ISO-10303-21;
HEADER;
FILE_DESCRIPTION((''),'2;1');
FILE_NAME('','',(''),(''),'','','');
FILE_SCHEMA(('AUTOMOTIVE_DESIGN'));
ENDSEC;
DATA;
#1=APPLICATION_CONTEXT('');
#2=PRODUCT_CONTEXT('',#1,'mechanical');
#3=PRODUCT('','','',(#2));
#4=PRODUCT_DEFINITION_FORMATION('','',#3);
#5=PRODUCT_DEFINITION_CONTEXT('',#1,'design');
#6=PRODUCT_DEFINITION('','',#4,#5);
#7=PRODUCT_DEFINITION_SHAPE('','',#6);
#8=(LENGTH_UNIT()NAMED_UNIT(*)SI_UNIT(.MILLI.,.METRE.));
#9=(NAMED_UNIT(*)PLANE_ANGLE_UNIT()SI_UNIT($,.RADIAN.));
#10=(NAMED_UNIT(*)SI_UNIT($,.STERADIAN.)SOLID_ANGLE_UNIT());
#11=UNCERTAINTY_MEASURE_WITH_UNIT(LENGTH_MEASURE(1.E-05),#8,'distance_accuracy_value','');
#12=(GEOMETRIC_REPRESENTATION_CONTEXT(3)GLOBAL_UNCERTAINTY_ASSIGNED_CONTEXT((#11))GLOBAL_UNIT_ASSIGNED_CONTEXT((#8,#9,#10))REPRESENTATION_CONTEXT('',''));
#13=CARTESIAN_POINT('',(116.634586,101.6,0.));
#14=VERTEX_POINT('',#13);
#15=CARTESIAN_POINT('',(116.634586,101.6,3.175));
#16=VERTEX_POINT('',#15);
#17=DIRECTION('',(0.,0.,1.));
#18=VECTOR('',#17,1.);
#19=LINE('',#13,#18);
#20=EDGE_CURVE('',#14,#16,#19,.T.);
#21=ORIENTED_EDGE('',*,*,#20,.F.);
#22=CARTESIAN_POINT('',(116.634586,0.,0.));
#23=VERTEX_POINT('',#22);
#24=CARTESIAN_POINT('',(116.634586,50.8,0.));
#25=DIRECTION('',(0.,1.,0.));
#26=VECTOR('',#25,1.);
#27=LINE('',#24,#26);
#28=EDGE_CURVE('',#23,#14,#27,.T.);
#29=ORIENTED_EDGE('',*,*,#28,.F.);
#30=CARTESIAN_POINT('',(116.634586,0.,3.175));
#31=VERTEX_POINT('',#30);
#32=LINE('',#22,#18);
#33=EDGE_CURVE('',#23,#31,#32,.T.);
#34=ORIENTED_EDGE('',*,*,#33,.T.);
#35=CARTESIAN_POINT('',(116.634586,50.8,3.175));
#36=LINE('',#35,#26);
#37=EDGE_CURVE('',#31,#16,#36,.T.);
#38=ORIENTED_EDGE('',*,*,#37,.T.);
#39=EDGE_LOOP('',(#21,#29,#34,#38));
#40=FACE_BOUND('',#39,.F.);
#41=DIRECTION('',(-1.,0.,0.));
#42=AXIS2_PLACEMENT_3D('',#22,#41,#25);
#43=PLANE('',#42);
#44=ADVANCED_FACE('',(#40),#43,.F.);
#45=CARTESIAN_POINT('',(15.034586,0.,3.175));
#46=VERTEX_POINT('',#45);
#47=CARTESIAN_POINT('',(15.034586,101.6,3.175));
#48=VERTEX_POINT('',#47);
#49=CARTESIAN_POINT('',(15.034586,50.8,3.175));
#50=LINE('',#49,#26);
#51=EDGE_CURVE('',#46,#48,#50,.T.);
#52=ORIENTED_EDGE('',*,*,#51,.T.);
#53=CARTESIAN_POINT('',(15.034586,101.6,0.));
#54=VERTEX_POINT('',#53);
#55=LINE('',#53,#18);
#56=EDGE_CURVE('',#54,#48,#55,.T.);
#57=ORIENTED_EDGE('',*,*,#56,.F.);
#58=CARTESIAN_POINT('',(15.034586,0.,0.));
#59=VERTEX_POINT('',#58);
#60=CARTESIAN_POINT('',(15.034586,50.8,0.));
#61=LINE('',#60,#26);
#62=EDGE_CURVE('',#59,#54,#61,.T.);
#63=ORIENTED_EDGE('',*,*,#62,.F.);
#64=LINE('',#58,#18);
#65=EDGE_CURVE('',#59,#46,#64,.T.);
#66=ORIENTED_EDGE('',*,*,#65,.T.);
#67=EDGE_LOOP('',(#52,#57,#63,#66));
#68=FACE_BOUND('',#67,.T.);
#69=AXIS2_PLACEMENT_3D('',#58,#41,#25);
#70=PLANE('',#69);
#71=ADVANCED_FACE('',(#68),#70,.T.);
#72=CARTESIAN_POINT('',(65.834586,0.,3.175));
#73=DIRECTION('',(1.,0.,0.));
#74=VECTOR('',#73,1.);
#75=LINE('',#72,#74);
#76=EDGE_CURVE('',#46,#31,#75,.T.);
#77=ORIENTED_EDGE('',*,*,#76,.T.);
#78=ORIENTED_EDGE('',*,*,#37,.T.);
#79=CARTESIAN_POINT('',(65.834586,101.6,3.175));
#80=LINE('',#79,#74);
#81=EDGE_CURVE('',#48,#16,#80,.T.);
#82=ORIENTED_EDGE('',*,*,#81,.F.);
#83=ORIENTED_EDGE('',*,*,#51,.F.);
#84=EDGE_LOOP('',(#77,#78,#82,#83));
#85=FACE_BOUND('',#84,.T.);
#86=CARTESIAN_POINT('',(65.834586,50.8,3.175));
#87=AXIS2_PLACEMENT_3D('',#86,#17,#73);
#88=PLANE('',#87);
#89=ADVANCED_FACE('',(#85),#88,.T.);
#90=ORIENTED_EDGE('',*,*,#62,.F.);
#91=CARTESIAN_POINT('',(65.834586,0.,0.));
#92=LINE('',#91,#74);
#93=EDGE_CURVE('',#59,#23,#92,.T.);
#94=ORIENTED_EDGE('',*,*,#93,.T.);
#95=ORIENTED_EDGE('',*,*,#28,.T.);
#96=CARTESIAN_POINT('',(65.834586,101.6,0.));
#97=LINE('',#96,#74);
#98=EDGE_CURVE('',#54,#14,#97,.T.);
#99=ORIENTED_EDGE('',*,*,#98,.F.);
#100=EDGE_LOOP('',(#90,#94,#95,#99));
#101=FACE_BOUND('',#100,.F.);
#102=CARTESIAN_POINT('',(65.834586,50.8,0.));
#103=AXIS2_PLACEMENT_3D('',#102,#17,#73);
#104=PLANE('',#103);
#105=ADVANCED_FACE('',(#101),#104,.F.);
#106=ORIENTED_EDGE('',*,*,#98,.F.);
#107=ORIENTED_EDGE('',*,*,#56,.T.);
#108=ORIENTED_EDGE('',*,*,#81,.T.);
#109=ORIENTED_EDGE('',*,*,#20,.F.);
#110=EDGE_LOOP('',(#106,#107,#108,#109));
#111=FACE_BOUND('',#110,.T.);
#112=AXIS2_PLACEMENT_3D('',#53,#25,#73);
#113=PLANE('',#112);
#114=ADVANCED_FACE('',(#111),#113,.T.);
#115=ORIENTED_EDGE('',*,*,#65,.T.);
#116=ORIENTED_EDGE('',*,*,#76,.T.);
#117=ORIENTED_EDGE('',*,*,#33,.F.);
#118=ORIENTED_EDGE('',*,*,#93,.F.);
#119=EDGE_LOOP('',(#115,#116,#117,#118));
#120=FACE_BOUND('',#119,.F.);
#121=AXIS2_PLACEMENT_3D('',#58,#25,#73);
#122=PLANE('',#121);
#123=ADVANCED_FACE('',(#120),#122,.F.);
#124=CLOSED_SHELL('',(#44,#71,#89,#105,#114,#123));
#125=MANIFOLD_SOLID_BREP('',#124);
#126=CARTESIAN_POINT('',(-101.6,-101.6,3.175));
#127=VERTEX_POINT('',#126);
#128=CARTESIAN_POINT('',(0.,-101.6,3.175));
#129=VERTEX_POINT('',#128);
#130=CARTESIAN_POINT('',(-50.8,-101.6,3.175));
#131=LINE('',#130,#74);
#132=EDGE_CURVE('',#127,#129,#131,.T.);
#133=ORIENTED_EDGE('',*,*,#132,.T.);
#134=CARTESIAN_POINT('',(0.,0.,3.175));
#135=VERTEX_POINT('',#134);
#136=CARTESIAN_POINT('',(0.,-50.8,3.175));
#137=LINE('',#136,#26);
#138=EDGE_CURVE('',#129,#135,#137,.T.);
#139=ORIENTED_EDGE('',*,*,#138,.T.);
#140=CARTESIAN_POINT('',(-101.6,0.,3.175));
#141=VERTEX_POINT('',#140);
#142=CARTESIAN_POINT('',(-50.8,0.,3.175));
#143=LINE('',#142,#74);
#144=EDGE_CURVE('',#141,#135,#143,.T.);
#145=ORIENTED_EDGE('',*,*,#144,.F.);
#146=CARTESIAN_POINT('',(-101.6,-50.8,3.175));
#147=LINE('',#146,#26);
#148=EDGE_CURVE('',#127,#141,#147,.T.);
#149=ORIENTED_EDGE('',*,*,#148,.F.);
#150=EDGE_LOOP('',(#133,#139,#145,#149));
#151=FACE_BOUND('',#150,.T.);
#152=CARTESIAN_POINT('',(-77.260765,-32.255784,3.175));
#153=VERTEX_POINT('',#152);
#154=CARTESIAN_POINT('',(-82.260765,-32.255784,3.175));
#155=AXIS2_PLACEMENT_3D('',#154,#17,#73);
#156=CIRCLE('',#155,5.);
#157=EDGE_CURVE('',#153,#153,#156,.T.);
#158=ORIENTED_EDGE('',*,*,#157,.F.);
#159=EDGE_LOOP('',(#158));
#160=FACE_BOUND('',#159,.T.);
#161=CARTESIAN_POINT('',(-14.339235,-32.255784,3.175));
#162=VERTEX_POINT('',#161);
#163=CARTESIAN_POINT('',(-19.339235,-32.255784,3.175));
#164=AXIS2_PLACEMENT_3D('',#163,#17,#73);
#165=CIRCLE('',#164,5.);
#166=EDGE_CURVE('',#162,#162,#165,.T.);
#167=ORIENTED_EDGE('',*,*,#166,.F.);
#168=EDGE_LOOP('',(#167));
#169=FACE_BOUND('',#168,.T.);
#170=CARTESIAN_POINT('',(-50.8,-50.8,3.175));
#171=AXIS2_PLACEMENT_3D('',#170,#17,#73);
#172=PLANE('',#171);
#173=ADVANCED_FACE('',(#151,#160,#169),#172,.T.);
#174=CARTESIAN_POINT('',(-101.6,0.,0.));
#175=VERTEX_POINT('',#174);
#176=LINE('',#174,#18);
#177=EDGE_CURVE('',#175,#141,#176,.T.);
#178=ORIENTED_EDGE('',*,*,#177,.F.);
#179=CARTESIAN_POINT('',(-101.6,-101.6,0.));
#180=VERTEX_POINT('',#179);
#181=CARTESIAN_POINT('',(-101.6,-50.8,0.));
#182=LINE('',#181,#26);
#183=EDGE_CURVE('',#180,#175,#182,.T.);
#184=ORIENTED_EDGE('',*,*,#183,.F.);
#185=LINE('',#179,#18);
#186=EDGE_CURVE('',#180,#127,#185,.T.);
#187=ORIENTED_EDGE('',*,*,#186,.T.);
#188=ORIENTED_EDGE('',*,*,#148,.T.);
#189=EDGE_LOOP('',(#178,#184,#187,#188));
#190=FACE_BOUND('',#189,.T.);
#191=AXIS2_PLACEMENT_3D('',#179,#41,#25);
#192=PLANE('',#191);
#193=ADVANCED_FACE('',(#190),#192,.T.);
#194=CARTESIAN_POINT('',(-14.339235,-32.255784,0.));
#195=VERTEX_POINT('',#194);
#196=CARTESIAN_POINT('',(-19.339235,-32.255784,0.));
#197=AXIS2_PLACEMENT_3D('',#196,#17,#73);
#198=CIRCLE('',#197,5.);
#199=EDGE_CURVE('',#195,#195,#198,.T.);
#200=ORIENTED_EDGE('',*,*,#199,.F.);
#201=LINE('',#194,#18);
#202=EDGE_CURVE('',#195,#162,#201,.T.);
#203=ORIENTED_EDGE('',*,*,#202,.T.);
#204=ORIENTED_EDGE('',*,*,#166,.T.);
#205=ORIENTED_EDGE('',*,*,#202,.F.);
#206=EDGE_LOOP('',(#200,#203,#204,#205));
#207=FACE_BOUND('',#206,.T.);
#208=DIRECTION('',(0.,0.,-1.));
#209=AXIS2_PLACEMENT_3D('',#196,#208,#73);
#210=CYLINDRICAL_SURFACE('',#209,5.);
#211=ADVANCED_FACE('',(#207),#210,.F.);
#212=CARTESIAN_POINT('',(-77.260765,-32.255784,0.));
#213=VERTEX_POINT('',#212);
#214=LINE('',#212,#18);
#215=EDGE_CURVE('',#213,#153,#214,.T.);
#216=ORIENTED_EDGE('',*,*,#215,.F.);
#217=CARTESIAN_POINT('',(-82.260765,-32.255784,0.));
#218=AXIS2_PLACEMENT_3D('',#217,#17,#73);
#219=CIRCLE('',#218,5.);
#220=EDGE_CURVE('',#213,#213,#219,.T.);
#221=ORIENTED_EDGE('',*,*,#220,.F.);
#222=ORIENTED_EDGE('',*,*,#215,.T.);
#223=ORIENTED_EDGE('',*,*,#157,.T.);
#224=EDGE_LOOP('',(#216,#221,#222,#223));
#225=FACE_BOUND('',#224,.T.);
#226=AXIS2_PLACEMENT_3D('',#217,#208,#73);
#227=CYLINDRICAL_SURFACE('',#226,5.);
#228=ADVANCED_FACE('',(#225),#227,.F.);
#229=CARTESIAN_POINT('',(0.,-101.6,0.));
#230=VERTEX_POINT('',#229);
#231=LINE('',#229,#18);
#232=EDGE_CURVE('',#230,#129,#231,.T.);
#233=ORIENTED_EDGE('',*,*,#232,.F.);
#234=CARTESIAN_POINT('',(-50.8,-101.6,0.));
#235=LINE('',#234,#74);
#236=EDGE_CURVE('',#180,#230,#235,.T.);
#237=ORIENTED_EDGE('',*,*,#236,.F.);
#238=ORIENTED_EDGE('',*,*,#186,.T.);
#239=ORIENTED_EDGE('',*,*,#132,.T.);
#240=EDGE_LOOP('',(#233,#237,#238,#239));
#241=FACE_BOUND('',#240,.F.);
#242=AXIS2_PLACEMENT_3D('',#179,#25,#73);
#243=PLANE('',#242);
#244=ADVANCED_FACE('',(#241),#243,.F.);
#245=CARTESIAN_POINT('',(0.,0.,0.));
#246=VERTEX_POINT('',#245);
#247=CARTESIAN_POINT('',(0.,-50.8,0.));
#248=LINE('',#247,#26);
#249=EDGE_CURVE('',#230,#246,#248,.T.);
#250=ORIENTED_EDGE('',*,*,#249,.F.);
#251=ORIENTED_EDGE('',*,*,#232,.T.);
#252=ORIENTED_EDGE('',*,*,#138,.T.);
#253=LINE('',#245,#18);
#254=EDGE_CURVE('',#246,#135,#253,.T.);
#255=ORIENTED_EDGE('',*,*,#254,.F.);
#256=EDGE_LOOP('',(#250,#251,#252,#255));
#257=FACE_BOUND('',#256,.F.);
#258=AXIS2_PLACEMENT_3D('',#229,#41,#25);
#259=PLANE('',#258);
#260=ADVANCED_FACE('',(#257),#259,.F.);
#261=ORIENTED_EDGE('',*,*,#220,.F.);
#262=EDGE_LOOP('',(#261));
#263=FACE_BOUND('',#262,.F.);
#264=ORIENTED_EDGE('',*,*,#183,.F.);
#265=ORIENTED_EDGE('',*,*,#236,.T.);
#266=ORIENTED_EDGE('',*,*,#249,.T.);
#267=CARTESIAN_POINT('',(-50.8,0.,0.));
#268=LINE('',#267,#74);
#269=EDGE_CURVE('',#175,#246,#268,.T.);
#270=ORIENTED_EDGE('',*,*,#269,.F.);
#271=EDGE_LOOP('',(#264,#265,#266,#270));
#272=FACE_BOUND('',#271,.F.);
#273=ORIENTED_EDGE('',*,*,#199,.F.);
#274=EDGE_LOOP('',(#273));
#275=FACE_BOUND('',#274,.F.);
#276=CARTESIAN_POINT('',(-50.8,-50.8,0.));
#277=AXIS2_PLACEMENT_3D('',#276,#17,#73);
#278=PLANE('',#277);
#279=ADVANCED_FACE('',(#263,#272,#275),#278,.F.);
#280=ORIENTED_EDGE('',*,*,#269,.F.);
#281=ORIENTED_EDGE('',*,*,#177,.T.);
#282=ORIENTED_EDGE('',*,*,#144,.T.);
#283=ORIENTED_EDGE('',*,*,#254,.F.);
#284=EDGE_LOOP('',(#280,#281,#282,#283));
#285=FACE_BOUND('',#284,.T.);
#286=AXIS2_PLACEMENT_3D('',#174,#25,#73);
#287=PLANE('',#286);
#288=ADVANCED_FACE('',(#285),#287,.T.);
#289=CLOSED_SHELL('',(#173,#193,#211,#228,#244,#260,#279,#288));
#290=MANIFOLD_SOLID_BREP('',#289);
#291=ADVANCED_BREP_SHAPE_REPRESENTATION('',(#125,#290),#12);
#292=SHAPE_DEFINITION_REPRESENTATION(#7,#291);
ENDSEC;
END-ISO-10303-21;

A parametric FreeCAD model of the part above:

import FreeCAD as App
import Part
import Sketcher
Q = App.Units.Quantity


def add_polygon(sketch, points):
    """Adds a closed chain of lines whose ends are joined by coincident constraints."""
    first, n = sketch.GeometryCount, len(points)
    for a, b in zip(points, points[1:] + points[:1]):
        sketch.addGeometry(Part.LineSegment(App.Vector(*a, 0), App.Vector(*b, 0)), False)
    for i in range(n):
        sketch.addConstraint(Sketcher.Constraint("Coincident", first + i, 2, first + (i + 1) % n, 1))

doc = App.newDocument("Part")
body = doc.addObject("PartDesign::Body", "Body")

sketch1 = doc.addObject("Sketcher::SketchObject", "Sketch")
body.addObject(sketch1)
sketch1.AttachmentSupport = (doc.XY_Plane, [""])
sketch1.MapMode = "FlatFace"
add_polygon(sketch1, [(-102, 0), (-102, -102), (0, -102), (0, 0)])
sketch1.addGeometry(Part.Circle(App.Vector(-82, -32, 0), App.Vector(0, 0, 1), 5), False)
sketch1.addGeometry(Part.Circle(App.Vector(-19, -32, 0), App.Vector(0, 0, 1), 5), False)
sketch1.addConstraint([
    Sketcher.Constraint("Vertical", 0),
    Sketcher.Constraint("Horizontal", 1),
    Sketcher.Constraint("Vertical", 2),
    Sketcher.Constraint("Horizontal", 3),
    Sketcher.Constraint("Coincident", 2, 2, -1, 1),
    Sketcher.Constraint("Equal", 4, 5),
    Sketcher.Constraint("Horizontal", 4, 3, 5, 3),
    Sketcher.Constraint("Equal", 3, 0),
    Sketcher.Constraint("DistanceX", 1, 1, 1, 2, Q("4 in")),
    Sketcher.Constraint("Diameter", 4, Q("10 mm")),
    Sketcher.Constraint("DistanceX", 4, 3, 5, 3, Q("62.92153 mm")),
    Sketcher.Constraint("DistanceX", 4, 3, -1, 1, Q("82.260765 mm")),
    Sketcher.Constraint("DistanceY", 4, 3, -1, 1, Q("32.255784 mm")),
])
pad1 = doc.addObject("PartDesign::Pad", "Pad")
body.addObject(pad1)
pad1.Profile = sketch1
pad1.Length = Q("0.125 in")
body2 = doc.addObject("PartDesign::Body", "Body001")

sketch2 = doc.addObject("Sketcher::SketchObject", "Sketch001")
body2.addObject(sketch2)
sketch2.AttachmentSupport = (doc.getObject("XY_Plane001"), [""])
sketch2.MapMode = "FlatFace"
add_polygon(sketch2, [(15, 102), (15, 0), (117, 0), (117, 102)])
sketch2.addConstraint([
    Sketcher.Constraint("Vertical", 0),
    Sketcher.Constraint("Horizontal", 1),
    Sketcher.Constraint("Vertical", 2),
    Sketcher.Constraint("Horizontal", 3),
    Sketcher.Constraint("PointOnObject", 0, 2, -1),
    Sketcher.Constraint("Equal", 3, 0),
    Sketcher.Constraint("DistanceX", 1, 1, 1, 2, Q("4 in")),
    Sketcher.Constraint("DistanceX", -1, 1, 0, 2, Q("15.034586 mm")),
])
pad2 = doc.addObject("PartDesign::Pad", "Pad001")
body2.addObject(pad2)
pad2.Profile = sketch2
pad2.Length = Q("0.125 in")

doc.recompute()
